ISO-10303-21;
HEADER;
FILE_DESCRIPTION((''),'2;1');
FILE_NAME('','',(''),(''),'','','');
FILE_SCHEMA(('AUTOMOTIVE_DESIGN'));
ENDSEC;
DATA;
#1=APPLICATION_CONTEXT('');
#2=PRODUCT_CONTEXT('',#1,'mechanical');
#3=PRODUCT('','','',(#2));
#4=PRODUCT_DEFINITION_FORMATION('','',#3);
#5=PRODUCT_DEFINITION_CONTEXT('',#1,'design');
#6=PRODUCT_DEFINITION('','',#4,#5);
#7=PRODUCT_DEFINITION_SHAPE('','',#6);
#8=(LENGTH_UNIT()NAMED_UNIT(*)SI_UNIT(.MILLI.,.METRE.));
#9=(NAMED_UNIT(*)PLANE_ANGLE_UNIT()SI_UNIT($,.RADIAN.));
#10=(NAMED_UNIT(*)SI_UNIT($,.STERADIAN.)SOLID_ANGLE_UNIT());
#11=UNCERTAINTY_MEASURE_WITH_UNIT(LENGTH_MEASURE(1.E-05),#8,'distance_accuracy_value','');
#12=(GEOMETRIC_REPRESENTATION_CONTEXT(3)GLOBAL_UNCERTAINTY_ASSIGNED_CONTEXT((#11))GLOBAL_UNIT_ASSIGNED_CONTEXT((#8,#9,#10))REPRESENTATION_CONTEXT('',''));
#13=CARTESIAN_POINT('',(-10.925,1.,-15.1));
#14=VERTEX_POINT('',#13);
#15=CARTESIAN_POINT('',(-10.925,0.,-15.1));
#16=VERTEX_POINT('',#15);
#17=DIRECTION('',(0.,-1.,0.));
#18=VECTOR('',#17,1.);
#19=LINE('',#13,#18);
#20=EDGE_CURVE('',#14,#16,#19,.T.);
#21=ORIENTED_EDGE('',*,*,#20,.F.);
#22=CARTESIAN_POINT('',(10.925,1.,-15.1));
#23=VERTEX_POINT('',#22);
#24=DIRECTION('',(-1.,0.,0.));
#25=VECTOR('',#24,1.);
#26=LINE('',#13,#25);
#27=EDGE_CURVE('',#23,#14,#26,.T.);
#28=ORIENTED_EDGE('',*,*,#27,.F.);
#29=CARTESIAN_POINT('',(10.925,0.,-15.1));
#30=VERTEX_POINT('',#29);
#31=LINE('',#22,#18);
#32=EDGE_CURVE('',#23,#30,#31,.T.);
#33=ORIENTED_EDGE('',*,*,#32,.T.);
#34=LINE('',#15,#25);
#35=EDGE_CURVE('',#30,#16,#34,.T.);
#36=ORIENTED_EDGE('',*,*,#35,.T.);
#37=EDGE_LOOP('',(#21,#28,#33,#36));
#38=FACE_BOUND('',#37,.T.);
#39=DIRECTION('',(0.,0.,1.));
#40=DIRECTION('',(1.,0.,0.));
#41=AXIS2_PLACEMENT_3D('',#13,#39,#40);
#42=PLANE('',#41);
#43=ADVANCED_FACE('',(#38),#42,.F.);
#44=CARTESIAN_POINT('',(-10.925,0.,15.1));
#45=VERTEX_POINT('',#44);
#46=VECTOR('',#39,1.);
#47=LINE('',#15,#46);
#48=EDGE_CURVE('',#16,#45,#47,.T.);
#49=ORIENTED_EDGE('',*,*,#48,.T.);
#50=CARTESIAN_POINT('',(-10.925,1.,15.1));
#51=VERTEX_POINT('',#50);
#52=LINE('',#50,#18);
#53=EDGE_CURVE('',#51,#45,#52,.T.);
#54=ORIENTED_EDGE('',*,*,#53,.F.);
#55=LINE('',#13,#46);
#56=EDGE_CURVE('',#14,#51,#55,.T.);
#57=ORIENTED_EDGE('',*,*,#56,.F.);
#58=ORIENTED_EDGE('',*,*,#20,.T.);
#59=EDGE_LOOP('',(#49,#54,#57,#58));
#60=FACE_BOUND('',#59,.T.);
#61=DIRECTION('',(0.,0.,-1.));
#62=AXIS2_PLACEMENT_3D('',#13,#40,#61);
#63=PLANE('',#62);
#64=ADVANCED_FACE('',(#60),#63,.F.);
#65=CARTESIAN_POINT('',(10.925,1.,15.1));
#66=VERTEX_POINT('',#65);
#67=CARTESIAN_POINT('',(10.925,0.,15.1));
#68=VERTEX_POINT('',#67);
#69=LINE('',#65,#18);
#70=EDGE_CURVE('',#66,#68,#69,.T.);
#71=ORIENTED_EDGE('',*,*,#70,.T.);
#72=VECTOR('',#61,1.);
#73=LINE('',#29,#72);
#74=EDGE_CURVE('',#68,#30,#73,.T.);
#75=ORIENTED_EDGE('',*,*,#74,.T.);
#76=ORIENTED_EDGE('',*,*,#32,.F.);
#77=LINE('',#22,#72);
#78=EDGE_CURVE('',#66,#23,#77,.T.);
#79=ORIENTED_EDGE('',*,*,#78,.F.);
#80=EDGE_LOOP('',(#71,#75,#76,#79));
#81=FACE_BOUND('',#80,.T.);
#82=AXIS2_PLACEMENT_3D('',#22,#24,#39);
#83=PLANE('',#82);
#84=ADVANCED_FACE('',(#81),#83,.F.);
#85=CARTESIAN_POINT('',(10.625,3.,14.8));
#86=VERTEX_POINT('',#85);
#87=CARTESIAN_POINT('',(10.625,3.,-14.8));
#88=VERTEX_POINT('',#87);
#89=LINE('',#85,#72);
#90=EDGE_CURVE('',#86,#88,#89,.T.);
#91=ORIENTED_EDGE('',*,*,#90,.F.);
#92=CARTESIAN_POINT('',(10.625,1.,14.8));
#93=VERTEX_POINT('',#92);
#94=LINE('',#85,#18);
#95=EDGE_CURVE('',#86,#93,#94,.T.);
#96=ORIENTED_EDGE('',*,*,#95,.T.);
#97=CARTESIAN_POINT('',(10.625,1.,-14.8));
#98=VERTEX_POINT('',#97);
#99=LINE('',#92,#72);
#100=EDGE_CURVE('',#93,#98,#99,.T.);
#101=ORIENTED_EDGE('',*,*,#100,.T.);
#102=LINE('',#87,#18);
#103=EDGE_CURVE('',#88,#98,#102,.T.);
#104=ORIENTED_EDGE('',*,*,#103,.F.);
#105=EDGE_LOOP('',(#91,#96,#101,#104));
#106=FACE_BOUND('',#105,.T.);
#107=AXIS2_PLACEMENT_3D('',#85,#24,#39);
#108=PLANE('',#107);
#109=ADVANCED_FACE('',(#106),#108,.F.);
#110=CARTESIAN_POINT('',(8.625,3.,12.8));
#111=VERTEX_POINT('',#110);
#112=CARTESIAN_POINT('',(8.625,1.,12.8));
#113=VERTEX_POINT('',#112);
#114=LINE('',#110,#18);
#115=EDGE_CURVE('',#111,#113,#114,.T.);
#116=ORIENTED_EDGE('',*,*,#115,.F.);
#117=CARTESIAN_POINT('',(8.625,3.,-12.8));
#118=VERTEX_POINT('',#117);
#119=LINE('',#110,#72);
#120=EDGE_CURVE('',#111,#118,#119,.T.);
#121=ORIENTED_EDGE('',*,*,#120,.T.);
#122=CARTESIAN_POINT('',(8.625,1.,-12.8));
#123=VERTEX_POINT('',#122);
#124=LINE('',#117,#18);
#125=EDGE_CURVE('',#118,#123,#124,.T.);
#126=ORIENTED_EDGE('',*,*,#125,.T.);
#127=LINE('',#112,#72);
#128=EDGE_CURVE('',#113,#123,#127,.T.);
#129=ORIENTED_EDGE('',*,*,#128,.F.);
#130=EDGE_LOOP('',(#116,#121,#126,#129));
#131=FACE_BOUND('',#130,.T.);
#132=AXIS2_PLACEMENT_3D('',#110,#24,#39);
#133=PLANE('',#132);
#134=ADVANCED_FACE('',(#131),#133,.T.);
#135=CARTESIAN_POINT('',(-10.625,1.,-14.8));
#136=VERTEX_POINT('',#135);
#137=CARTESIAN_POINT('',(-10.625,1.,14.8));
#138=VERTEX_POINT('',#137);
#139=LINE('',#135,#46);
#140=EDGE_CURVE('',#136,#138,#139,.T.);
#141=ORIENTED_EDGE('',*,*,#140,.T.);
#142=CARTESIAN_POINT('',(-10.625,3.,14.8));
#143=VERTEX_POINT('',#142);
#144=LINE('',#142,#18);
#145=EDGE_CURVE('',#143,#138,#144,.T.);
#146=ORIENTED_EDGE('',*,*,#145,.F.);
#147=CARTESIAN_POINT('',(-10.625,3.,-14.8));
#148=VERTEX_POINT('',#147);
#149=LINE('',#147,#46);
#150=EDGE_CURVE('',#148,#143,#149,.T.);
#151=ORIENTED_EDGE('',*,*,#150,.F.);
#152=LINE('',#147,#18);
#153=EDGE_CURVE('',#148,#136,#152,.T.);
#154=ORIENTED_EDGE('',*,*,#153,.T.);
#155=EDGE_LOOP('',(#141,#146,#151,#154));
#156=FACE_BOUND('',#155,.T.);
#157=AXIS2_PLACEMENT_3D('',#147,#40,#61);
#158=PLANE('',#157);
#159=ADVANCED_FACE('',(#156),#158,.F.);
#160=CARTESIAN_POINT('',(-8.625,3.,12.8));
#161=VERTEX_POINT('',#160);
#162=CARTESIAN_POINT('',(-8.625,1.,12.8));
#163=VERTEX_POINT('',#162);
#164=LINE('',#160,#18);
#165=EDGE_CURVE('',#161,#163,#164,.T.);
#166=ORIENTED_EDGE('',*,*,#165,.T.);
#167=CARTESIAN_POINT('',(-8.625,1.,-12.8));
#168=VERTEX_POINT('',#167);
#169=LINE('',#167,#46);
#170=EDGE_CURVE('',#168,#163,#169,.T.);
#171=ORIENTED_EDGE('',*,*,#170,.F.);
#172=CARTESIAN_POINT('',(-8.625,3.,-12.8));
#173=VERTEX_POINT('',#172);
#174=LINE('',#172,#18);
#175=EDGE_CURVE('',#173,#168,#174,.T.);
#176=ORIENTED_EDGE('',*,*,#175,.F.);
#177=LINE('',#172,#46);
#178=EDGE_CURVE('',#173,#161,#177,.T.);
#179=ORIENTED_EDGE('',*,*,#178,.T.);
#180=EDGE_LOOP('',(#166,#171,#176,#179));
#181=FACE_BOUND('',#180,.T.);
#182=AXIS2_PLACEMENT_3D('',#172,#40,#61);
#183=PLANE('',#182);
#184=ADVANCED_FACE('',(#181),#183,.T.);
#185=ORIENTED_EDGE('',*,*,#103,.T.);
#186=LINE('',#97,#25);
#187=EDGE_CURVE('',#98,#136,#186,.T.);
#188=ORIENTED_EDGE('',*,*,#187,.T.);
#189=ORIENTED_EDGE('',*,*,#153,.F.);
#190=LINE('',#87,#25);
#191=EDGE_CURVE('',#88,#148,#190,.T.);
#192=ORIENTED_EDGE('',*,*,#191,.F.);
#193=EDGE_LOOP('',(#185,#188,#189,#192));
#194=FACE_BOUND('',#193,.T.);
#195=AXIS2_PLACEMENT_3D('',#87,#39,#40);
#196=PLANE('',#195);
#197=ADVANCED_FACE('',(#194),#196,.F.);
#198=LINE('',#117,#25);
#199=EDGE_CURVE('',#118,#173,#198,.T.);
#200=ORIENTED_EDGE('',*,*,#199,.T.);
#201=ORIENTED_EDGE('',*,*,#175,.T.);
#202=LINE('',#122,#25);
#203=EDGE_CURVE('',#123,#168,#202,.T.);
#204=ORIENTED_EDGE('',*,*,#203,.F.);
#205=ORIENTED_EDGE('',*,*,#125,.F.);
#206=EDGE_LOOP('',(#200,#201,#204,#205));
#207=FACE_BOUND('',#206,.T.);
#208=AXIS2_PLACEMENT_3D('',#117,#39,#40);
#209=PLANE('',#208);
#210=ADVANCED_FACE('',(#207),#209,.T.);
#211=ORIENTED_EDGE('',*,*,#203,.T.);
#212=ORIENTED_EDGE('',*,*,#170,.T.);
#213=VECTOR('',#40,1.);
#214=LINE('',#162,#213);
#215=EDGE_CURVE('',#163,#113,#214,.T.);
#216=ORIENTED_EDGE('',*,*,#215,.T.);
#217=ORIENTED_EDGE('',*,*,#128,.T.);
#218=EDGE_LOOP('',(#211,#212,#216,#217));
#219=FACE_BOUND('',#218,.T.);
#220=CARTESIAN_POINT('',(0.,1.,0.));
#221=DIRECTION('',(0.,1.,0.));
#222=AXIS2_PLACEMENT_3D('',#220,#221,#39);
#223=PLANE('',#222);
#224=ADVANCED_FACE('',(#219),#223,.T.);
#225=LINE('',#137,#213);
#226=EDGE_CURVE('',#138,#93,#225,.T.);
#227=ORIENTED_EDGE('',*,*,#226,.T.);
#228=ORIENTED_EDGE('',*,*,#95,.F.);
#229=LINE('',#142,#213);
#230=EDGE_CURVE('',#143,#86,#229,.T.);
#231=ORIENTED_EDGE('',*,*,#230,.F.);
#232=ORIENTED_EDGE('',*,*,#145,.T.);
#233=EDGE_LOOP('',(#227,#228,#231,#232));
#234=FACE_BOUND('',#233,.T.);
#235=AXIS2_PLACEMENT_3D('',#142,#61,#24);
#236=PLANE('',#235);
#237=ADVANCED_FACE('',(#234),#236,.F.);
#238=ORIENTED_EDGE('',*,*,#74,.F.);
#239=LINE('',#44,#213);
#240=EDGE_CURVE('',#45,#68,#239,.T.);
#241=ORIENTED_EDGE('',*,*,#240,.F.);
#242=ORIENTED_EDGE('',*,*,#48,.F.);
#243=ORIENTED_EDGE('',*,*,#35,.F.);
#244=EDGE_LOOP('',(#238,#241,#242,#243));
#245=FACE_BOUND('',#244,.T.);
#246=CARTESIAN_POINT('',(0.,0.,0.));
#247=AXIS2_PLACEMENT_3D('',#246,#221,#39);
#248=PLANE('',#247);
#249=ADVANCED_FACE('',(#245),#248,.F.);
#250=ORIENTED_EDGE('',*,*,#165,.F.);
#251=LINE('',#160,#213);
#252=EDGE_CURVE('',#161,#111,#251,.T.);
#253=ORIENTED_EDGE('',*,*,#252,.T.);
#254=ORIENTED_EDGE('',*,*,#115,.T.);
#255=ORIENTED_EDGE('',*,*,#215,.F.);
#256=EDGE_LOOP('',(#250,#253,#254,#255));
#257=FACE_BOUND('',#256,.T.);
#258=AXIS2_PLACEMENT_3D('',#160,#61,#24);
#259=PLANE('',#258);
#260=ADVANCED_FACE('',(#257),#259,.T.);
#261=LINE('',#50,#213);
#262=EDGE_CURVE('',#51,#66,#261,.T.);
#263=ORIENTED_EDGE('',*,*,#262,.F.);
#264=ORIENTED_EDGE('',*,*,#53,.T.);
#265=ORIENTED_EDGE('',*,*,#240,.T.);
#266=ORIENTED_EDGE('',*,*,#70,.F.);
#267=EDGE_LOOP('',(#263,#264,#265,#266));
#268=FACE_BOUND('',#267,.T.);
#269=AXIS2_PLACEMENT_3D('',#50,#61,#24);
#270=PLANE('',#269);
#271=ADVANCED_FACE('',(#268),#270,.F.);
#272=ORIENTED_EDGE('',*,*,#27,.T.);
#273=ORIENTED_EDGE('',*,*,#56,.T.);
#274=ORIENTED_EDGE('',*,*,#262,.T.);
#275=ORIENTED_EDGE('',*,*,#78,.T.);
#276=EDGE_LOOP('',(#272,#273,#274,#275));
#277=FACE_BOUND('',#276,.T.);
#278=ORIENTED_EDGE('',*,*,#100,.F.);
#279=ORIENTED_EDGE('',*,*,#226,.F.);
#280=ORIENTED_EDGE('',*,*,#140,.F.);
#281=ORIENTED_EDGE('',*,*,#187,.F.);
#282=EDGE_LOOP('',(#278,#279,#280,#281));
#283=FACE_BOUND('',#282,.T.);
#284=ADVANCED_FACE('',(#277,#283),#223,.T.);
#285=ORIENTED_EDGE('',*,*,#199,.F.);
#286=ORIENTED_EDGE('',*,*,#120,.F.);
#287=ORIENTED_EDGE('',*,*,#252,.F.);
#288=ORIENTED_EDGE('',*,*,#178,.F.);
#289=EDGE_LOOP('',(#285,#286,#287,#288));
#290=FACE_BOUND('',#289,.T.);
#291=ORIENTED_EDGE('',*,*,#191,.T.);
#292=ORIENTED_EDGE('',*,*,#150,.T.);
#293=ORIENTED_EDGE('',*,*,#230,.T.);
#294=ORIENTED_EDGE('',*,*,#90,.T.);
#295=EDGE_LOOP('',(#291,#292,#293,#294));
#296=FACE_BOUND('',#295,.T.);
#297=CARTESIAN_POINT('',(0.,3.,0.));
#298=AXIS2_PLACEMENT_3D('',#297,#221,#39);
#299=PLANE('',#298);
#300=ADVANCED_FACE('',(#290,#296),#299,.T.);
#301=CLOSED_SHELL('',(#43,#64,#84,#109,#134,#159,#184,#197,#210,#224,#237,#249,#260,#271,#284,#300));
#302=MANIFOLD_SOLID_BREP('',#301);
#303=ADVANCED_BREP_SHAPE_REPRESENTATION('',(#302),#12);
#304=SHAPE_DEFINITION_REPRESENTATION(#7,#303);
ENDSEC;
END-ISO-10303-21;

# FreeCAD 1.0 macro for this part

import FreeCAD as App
import Part
import Sketcher


def add_polygon(sketch, points):
    """Adds a closed chain of lines whose ends are joined by coincident constraints."""
    first, n = sketch.GeometryCount, len(points)
    for a, b in zip(points, points[1:] + points[:1]):
        sketch.addGeometry(Part.LineSegment(App.Vector(*a, 0), App.Vector(*b, 0)), False)
    for i in range(n):
        sketch.addConstraint(Sketcher.Constraint("Coincident", first + i, 2, first + (i + 1) % n, 1))

doc = App.newDocument("Part")
params = doc.addObject("Spreadsheet::Sheet", "Params")
for row, (alias, value) in enumerate([
    ("sketch1_height", "30.2 mm"),
    ("sketch1_width", "21.85 mm"),
    ("pad1_length", "1 mm"),
    ("sketch2_height", "29.6 mm"),
    ("sketch2_height2", "25.6 mm"),
    ("sketch2_width", "21.25 mm"),
    ("pad2_length", "2 mm"),
], start=1):
    params.set(f"A{row}", alias)
    params.set(f"B{row}", "=" + value)
    params.setAlias(f"B{row}", alias)

body = doc.addObject("PartDesign::Body", "Body")

# Sketch on XZ plane
sketch1 = body.newObject("Sketcher::SketchObject", "Sketch")
sketch1.AttachmentSupport = (doc.getObject("XZ_Plane"), [""])
sketch1.MapMode = "FlatFace"
add_polygon(sketch1, [(-10.925, -15.1), (-10.925, 15.1), (10.925, 15.1), (10.925, -15.1)])  # lines 0-3
sketch1.addConstraint([
    Sketcher.Constraint("Vertical", 0),
    Sketcher.Constraint("Horizontal", 1),
    Sketcher.Constraint("Vertical", 2),
    Sketcher.Constraint("Horizontal", 3),
    Sketcher.Constraint("Symmetric", 0, 2, 2, 2, -1, 1),
    Sketcher.Constraint("DistanceY", 0, 1, 0, 2, 30.2),
    Sketcher.Constraint("DistanceX", 1, 1, 1, 2, 21.85),
])
sketch1.setExpression("Constraints[9]", "Params.sketch1_height")
sketch1.setExpression("Constraints[10]", "Params.sketch1_width")
pad1 = body.newObject("PartDesign::Pad", "Pad")
pad1.Profile = sketch1
pad1.setExpression("Length", "Params.pad1_length")
pad1.Reversed = True

# Sketch on XZ plane
sketch2 = body.newObject("Sketcher::SketchObject", "Sketch001")
sketch2.AttachmentSupport = (doc.getObject("XZ_Plane"), [""])
sketch2.MapMode = "FlatFace"
sketch2.AttachmentOffset = App.Placement(App.Vector(0, 0, -1), App.Rotation())
add_polygon(sketch2, [(-10.625, -14.8), (-10.625, 14.8), (10.625, 14.8), (10.625, -14.8)])  # lines 0-3
add_polygon(sketch2, [(8.625, 12.8), (-8.625, 12.8), (-8.625, -12.8), (8.625, -12.8)])  # lines 4-7
sketch2.addConstraint([
    Sketcher.Constraint("Vertical", 0),
    Sketcher.Constraint("Horizontal", 1),
    Sketcher.Constraint("Vertical", 2),
    Sketcher.Constraint("Horizontal", 3),
    Sketcher.Constraint("Horizontal", 4),
    Sketcher.Constraint("Vertical", 5),
    Sketcher.Constraint("Horizontal", 6),
    Sketcher.Constraint("Vertical", 7),
    Sketcher.Constraint("Symmetric", 0, 2, 2, 2, -1, 1),
    Sketcher.Constraint("Symmetric", 4, 2, 6, 2, -1, 1),
    Sketcher.Constraint("DistanceY", 0, 1, 0, 2, 29.6),
    Sketcher.Constraint("DistanceY", 5, 2, 5, 1, 25.6),
    Sketcher.Constraint("DistanceX", 0, 2, 4, 2, 2.0),
    Sketcher.Constraint("DistanceX", 1, 1, 1, 2, 21.25),
])
sketch2.setExpression("Constraints[18]", "Params.sketch2_height")
sketch2.setExpression("Constraints[19]", "Params.sketch2_height2")
sketch2.setExpression("Constraints[21]", "Params.sketch2_width")
pad2 = body.newObject("PartDesign::Pad", "Pad001")
pad2.Profile = sketch2
pad2.setExpression("Length", "Params.pad2_length")
pad2.Reversed = True

doc.recompute()
